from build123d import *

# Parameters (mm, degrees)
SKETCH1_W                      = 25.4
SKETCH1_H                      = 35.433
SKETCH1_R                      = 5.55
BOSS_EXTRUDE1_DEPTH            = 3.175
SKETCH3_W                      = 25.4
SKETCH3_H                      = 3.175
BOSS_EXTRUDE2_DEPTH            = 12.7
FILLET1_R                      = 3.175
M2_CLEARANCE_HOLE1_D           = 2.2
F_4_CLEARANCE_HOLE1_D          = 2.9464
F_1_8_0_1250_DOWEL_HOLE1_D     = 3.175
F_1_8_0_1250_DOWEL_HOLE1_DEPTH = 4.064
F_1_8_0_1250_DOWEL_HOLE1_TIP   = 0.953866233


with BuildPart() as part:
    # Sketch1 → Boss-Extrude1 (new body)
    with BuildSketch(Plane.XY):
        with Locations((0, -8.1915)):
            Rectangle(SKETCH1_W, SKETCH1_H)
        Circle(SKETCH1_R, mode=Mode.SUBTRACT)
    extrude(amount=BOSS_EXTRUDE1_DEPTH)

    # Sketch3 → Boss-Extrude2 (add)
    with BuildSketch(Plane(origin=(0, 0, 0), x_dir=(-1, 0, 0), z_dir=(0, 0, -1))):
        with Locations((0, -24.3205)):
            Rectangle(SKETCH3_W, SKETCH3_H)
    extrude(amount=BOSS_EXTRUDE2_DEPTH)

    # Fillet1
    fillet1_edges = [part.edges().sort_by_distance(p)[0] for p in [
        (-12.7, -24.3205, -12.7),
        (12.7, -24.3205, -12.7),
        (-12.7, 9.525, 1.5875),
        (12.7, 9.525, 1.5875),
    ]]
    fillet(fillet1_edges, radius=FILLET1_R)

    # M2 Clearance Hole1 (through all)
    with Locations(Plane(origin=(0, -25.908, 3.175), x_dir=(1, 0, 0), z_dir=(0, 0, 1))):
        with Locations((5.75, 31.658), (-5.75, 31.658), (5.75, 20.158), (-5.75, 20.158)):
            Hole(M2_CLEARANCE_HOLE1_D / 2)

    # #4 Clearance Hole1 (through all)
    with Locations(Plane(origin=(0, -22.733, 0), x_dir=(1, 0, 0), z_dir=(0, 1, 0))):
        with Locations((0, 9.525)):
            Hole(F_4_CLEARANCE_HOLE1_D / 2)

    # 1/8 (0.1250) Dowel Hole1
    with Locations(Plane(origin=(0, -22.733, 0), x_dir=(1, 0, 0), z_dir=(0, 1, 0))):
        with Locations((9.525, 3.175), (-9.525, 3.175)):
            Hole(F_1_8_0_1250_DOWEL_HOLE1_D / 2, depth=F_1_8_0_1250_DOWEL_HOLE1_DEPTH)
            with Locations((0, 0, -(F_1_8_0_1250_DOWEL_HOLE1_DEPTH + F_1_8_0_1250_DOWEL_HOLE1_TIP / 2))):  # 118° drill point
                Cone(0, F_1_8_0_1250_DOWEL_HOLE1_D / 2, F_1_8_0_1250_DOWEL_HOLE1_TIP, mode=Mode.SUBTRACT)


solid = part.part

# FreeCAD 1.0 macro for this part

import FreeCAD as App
import Part
import Sketcher
Q = App.Units.Quantity


def edges_at(feature, points):
    """Names of the edges that pass closest to the given points."""
    edges = feature.Shape.Edges
    near = lambda p: min(range(len(edges)), key=lambda i: edges[i].distToShape(Part.Vertex(*p))[0])
    return sorted({f"Edge{near(p) + 1}" for p in points})


def add_polygon(sketch, points):
    """Adds a closed chain of lines whose ends are joined by coincident constraints."""
    first, n = sketch.GeometryCount, len(points)
    for a, b in zip(points, points[1:] + points[:1]):
        sketch.addGeometry(Part.LineSegment(App.Vector(*a, 0), App.Vector(*b, 0)), False)
    for i in range(n):
        sketch.addConstraint(Sketcher.Constraint("Coincident", first + i, 2, first + (i + 1) % n, 1))

doc = App.newDocument("Part")
body = doc.addObject("PartDesign::Body", "Body")

sketch1 = doc.addObject("Sketcher::SketchObject", "Sketch")
body.addObject(sketch1)
sketch1.AttachmentSupport = (doc.XY_Plane, [""])
sketch1.MapMode = "FlatFace"
add_polygon(sketch1, [(-13, 10), (-13, -26), (13, -26), (13, 10)])
sketch1.addGeometry(Part.Circle(App.Vector(0, 0, 0), App.Vector(0, 0, 1), 6), False)
sketch1.addConstraint([
    Sketcher.Constraint("Vertical", 0),
    Sketcher.Constraint("Horizontal", 1),
    Sketcher.Constraint("Vertical", 2),
    Sketcher.Constraint("Horizontal", 3),
    Sketcher.Constraint("Coincident", 4, 3, -1, 1),
    Sketcher.Constraint("DistanceX", 1, 1, 1, 2, Q("1 in")),
    Sketcher.Constraint("DistanceX", 0, 2, -1, 1, Q("0.5 in")),
    Sketcher.Constraint("Diameter", 4, 11.1),
    Sketcher.Constraint("DistanceY", 0, 2, 0, 1, Q("1.395 in")),
    Sketcher.Constraint("DistanceY", 0, 2, -1, 1, Q("1.02 in")),
])
pad1 = doc.addObject("PartDesign::Pad", "Pad")
body.addObject(pad1)
pad1.Profile = sketch1
pad1.Length = Q("0.125 in")

sketch2 = doc.addObject("Sketcher::SketchObject", "Sketch001")
body.addObject(sketch2)
sketch2.AttachmentSupport = (doc.XY_Plane, [""])
sketch2.MapMode = "FlatFace"
add_polygon(sketch2, [(12.7, -22.7), (12.7, -25.9), (-12.7, -25.9), (-12.7, -22.7)])
sketch2.addConstraint([
    Sketcher.Constraint("Vertical", 0),
    Sketcher.Constraint("Horizontal", 1),
    Sketcher.Constraint("Vertical", 2),
    Sketcher.Constraint("Horizontal", 3),
    Sketcher.Constraint("DistanceX", 1, 2, 1, 1, Q("1 in")),
    Sketcher.Constraint("DistanceX", -1, 1, 0, 2, Q("0.5 in")),
    Sketcher.Constraint("DistanceY", 0, 2, 0, 1, Q("0.125 in")),
    Sketcher.Constraint("DistanceY", 0, 2, -1, 1, Q("1.02 in")),
])
pad2 = doc.addObject("PartDesign::Pad", "Pad001")
body.addObject(pad2)
pad2.Profile = sketch2
pad2.Length = Q("0.5 in")
pad2.Reversed = True
doc.recompute()

fillet = doc.addObject("PartDesign::Fillet", "Fillet")
body.addObject(fillet)
fillet.Base = (pad2, edges_at(pad2, [
    (-12.7, -24.32, -12.7),
    (12.7, -24.32, -12.7),
    (-12.7, 9.525, 1.587),
    (12.7, 9.525, 1.587),
]))
fillet.Radius = Q("0.125 in")

sketch3 = doc.addObject("Sketcher::SketchObject", "Sketch002")
body.addObject(sketch3)
sketch3.AttachmentSupport = (doc.XY_Plane, [""])
sketch3.MapMode = "FlatFace"
sketch3.AttachmentOffset = App.Placement(App.Vector(0, 0, 0.125 * 25.4), App.Rotation())
sketch3.addGeometry([
    Part.Circle(App.Vector(5.8, 5.8, 0), App.Vector(0, 0, 1), 1.1),
    Part.Circle(App.Vector(-5.8, 5.8, 0), App.Vector(0, 0, 1), 1.1),
    Part.Circle(App.Vector(5.8, -5.8, 0), App.Vector(0, 0, 1), 1.1),
    Part.Circle(App.Vector(-5.8, -5.8, 0), App.Vector(0, 0, 1), 1.1),
], False)
sketch3.addConstraint([
    Sketcher.Constraint("Equal", 0, 1),
    Sketcher.Constraint("Equal", 1, 2),
    Sketcher.Constraint("Equal", 2, 3),
    Sketcher.Constraint("Symmetric", 1, 3, 2, 3, -1, 1),
    Sketcher.Constraint("Symmetric", 0, 3, 3, 3, -1, 1),
    Sketcher.Constraint("Symmetric", 0, 3, 1, 3, -2),
    Sketcher.Constraint("Diameter", 0, 2.2),
    Sketcher.Constraint("DistanceX", -1, 1, 0, 3, 5.75),
    Sketcher.Constraint("DistanceY", -1, 1, 0, 3, 5.75),
])
doc.recompute()
hole = doc.addObject("PartDesign::Hole", "Hole")
body.addObject(hole)
hole.Profile = sketch3
hole.ThreadType = "None"
hole.Diameter = 2.2
hole.DepthType = "ThroughAll"

sketch4 = doc.addObject("Sketcher::SketchObject", "Sketch003")
body.addObject(sketch4)
sketch4.AttachmentSupport = (doc.XZ_Plane, [""])
sketch4.MapMode = "FlatFace"
sketch4.AttachmentOffset = App.Placement(App.Vector(0, 0, 0.895 * 25.4), App.Rotation())
sketch4.addGeometry(Part.Circle(App.Vector(0, -9.5, 0), App.Vector(0, 0, 1), 1.5), False)
sketch4.addConstraint([
    Sketcher.Constraint("PointOnObject", 0, 3, -2),
    Sketcher.Constraint("Diameter", 0, Q("0.116 in")),
    Sketcher.Constraint("DistanceY", 0, 3, -1, 1, Q("0.375 in")),
])
doc.recompute()
hole2 = doc.addObject("PartDesign::Hole", "Hole001")
body.addObject(hole2)
hole2.Profile = sketch4
hole2.ThreadType = "None"
hole2.Diameter = Q("0.116 in")
hole2.DepthType = "ThroughAll"
hole2.Reversed = True

sketch5 = doc.addObject("Sketcher::SketchObject", "Sketch004")
body.addObject(sketch5)
sketch5.AttachmentSupport = (doc.XZ_Plane, [""])
sketch5.MapMode = "FlatFace"
sketch5.AttachmentOffset = App.Placement(App.Vector(0, 0, 0.895 * 25.4), App.Rotation())
sketch5.addGeometry([
    Part.Circle(App.Vector(9.5, -3.2, 0), App.Vector(0, 0, 1), 1.6),
    Part.Circle(App.Vector(-9.5, -3.2, 0), App.Vector(0, 0, 1), 1.6),
], False)
sketch5.addConstraint([
    Sketcher.Constraint("Equal", 0, 1),
    Sketcher.Constraint("Symmetric", 0, 3, 1, 3, -2),
    Sketcher.Constraint("Diameter", 0, Q("0.125 in")),
    Sketcher.Constraint("DistanceX", 1, 3, 0, 3, Q("0.75 in")),
    Sketcher.Constraint("DistanceY", 0, 3, -1, 1, Q("0.125 in")),
])
doc.recompute()
hole3 = doc.addObject("PartDesign::Hole", "Hole002")
body.addObject(hole3)
hole3.Profile = sketch5
hole3.ThreadType = "None"
hole3.Diameter = Q("0.125 in")
hole3.DepthType = "Dimension"
hole3.Depth = Q("0.16 in")
hole3.DrillPoint = "Angled"
hole3.DrillPointAngle = 118
hole3.Reversed = True

doc.recompute()
